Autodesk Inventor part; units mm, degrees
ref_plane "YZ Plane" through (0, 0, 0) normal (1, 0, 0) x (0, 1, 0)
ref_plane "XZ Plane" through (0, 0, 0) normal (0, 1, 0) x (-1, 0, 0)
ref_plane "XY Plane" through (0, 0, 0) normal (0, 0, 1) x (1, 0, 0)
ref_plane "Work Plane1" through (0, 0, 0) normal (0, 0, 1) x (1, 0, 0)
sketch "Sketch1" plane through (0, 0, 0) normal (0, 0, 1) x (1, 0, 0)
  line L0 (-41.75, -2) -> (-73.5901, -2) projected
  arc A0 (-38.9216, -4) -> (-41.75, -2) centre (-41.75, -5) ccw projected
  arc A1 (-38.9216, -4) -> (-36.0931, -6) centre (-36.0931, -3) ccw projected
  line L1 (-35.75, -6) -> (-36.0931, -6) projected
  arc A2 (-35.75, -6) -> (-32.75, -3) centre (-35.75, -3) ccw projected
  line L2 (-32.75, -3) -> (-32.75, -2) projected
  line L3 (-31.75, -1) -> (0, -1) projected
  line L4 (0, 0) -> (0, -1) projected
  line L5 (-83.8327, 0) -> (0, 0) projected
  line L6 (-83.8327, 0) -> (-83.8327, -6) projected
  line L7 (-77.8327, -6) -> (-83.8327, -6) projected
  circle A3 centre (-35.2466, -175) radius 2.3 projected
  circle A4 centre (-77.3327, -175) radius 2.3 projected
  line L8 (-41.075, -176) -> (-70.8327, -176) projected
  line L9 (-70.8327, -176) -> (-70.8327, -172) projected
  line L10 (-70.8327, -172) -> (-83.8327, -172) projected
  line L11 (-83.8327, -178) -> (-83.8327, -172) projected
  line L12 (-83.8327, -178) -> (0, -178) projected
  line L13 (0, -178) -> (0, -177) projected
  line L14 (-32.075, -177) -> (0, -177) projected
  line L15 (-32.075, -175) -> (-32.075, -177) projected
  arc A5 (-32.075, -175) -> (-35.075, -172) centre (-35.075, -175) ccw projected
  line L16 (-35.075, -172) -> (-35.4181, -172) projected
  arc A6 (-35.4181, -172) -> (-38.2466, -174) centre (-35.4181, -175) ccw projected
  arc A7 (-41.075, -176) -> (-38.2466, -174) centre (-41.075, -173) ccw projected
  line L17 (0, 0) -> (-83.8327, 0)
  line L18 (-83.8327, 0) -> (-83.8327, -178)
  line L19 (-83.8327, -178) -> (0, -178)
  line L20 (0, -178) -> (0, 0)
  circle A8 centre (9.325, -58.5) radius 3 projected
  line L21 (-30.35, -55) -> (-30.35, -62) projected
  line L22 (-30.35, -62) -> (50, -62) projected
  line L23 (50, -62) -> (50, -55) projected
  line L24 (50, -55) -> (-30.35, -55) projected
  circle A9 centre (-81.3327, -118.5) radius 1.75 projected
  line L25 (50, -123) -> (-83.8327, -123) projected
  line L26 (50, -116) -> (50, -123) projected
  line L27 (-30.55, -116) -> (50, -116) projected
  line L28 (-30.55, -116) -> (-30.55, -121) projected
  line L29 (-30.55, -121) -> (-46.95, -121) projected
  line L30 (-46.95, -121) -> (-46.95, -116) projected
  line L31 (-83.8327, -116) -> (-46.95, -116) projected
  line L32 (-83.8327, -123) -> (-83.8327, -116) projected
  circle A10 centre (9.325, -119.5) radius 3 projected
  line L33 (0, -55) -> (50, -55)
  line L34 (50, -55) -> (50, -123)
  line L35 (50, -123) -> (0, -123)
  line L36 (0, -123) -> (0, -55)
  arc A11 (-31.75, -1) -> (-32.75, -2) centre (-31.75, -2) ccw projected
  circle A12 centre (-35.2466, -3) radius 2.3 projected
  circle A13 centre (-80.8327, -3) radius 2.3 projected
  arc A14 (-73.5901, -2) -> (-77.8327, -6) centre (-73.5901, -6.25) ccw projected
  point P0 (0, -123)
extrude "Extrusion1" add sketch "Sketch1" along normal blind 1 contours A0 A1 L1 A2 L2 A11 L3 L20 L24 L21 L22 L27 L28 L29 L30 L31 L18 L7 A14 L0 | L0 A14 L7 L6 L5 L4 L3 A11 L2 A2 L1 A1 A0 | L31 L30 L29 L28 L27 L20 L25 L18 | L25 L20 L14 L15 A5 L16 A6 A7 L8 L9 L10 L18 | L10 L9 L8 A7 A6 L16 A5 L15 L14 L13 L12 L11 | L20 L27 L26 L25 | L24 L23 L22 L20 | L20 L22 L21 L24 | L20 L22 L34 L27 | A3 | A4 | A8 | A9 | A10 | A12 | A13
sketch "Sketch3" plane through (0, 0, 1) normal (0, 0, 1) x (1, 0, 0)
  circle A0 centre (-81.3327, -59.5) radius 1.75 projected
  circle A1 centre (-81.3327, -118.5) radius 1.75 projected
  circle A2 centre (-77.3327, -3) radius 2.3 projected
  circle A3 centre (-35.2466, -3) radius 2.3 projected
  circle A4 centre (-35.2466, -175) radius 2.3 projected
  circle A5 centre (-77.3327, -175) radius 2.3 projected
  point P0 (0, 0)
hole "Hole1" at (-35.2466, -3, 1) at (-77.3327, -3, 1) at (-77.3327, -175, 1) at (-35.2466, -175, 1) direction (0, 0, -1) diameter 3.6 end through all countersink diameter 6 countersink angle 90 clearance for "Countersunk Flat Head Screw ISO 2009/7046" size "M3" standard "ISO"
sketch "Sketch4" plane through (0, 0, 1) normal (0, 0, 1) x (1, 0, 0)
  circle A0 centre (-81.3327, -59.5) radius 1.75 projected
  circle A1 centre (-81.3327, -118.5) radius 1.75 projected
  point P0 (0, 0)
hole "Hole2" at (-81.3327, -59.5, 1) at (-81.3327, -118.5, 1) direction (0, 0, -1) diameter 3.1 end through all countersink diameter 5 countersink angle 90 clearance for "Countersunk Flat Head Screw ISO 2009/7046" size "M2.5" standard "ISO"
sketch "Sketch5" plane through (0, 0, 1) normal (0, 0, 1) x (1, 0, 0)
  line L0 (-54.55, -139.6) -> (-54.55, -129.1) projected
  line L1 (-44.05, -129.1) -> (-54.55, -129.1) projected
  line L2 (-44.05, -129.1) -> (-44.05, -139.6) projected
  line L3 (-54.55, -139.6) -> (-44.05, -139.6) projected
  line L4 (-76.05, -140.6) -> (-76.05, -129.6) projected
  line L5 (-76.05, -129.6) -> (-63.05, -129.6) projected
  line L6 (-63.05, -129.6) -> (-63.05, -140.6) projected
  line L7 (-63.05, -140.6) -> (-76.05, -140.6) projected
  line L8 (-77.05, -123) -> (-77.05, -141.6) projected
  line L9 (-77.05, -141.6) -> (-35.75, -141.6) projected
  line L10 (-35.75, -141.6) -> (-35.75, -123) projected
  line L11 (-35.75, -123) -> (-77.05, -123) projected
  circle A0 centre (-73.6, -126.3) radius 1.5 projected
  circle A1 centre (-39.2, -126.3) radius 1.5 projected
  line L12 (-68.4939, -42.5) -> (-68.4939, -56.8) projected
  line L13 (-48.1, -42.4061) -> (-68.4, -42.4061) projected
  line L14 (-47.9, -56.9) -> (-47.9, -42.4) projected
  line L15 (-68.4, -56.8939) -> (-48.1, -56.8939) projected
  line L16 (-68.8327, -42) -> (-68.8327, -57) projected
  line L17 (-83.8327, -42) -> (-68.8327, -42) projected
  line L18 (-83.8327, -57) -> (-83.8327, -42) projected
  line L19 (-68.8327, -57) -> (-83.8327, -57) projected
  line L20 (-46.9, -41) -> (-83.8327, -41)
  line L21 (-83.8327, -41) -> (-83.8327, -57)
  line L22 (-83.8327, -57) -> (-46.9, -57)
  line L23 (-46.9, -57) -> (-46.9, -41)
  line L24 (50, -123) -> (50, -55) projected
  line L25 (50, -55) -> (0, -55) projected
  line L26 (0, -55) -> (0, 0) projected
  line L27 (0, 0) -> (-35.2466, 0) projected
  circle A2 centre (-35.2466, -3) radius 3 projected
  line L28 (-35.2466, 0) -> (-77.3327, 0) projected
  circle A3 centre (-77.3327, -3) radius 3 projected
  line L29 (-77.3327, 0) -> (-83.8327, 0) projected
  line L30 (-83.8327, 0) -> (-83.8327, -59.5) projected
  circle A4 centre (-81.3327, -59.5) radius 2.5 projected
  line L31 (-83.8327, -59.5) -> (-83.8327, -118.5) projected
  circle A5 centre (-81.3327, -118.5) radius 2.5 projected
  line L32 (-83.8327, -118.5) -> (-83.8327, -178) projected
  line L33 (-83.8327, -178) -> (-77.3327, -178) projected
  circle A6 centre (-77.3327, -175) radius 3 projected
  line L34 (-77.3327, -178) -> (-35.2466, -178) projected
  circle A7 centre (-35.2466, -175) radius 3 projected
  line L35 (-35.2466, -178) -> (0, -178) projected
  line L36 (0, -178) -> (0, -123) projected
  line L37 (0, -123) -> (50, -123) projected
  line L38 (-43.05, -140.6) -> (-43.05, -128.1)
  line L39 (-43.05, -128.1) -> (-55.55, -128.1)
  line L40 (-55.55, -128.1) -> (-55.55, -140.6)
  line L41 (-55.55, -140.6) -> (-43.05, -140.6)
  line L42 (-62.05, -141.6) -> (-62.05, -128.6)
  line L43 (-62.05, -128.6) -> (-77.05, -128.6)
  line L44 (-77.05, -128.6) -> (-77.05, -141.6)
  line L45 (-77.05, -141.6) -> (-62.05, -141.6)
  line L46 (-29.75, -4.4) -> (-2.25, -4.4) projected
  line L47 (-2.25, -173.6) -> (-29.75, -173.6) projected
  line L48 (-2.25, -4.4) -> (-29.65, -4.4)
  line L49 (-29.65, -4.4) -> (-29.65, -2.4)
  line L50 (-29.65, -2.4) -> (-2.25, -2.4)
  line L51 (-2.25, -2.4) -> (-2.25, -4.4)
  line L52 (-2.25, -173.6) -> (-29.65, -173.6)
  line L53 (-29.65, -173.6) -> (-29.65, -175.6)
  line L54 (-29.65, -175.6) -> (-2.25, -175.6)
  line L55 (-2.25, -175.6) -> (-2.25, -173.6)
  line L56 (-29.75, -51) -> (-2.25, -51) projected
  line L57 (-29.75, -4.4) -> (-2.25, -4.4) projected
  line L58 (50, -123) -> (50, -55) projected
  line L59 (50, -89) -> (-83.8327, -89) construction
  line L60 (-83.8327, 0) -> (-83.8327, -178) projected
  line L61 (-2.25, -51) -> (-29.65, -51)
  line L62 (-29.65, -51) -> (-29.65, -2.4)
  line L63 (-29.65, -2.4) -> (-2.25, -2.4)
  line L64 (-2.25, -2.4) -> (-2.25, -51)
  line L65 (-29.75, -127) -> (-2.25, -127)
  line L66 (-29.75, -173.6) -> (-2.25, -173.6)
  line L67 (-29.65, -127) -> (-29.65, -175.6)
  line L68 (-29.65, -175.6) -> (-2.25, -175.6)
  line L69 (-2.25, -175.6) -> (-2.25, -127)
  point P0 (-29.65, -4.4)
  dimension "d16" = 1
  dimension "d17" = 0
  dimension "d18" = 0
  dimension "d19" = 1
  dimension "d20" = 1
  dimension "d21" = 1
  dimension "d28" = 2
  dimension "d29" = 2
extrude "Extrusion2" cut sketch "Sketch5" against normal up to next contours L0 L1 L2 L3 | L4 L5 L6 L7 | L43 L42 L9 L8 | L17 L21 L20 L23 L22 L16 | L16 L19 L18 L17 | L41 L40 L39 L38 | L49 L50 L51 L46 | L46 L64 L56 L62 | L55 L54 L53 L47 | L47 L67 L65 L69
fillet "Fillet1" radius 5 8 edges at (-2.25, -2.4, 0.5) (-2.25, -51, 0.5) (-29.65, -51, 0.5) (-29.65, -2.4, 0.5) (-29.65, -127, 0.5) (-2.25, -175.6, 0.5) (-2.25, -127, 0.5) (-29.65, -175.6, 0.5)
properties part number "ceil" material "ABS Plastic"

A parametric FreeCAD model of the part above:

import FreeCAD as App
import Part
import Sketcher


def edges_at(feature, points):
    """Names of the edges that pass closest to the given points."""
    edges = feature.Shape.Edges
    near = lambda p: min(range(len(edges)), key=lambda i: edges[i].distToShape(Part.Vertex(*p))[0])
    return sorted({f"Edge{near(p) + 1}" for p in points})

doc = App.newDocument("Part")
body = doc.addObject("PartDesign::Body", "Body")

# Sketch on XY plane
sketch1 = doc.addObject("Sketcher::SketchObject", "Sketch")
body.addObject(sketch1)
sketch1.AttachmentSupport = (doc.XY_Plane, [""])
sketch1.MapMode = "FlatFace"
sketch1.addGeometry(Part.LineSegment(App.Vector(0, -55, 0), App.Vector(0, 0, 0)), False)
sketch1.addGeometry(Part.LineSegment(App.Vector(0, 0, 0), App.Vector(-84, 0, 0)), False)
sketch1.addGeometry(Part.LineSegment(App.Vector(-84, 0, 0), App.Vector(-84, -178, 0)), False)
sketch1.addGeometry(Part.LineSegment(App.Vector(-84, -178, 0), App.Vector(0, -178, 0)), False)
sketch1.addGeometry(Part.LineSegment(App.Vector(0, -178, 0), App.Vector(0, -123, 0)), False)
sketch1.addGeometry(Part.LineSegment(App.Vector(0, -123, 0), App.Vector(50, -123, 0)), False)
sketch1.addGeometry(Part.LineSegment(App.Vector(50, -123, 0), App.Vector(50, -55, 0)), False)
sketch1.addGeometry(Part.LineSegment(App.Vector(50, -55, 0), App.Vector(0, -55, 0)), False)
sketch1.addConstraint(Sketcher.Constraint("Coincident", 0, 2, 1, 1))
sketch1.addConstraint(Sketcher.Constraint("Coincident", 1, 2, 2, 1))
sketch1.addConstraint(Sketcher.Constraint("Coincident", 2, 2, 3, 1))
sketch1.addConstraint(Sketcher.Constraint("Coincident", 3, 2, 4, 1))
sketch1.addConstraint(Sketcher.Constraint("Coincident", 4, 2, 5, 1))
sketch1.addConstraint(Sketcher.Constraint("Coincident", 5, 2, 6, 1))
sketch1.addConstraint(Sketcher.Constraint("Coincident", 6, 2, 7, 1))
sketch1.addConstraint(Sketcher.Constraint("Coincident", 7, 2, 0, 1))
sketch1.addConstraint(Sketcher.Constraint("Vertical", 0))
sketch1.addConstraint(Sketcher.Constraint("Horizontal", 1))
sketch1.addConstraint(Sketcher.Constraint("Vertical", 2))
sketch1.addConstraint(Sketcher.Constraint("Horizontal", 3))
sketch1.addConstraint(Sketcher.Constraint("Vertical", 4))
sketch1.addConstraint(Sketcher.Constraint("Horizontal", 5))
sketch1.addConstraint(Sketcher.Constraint("Vertical", 6))
sketch1.addConstraint(Sketcher.Constraint("Horizontal", 7))
sketch1.addConstraint(Sketcher.Constraint("Coincident", 0, 2, -1, 1))
sketch1.addConstraint(Sketcher.Constraint("PointOnObject", 3, 2, -2))
sketch1.addConstraint(Sketcher.Constraint("Equal", 0, 4))
sketch1.addConstraint(Sketcher.Constraint("DistanceX", 5, 1, 5, 2, 50.0))
sketch1.addConstraint(Sketcher.Constraint("DistanceY", 0, 1, 0, 2, 55.0))
sketch1.addConstraint(Sketcher.Constraint("DistanceY", 2, 2, 2, 1, 178.0))
sketch1.addConstraint(Sketcher.Constraint("DistanceX", 1, 2, 1, 1, 83.8327))
pad1 = doc.addObject("PartDesign::Pad", "Pad")
body.addObject(pad1)
pad1.Profile = sketch1
pad1.Length = 1

# Sketch on XY plane
sketch2 = doc.addObject("Sketcher::SketchObject", "Sketch001")
body.addObject(sketch2)
sketch2.AttachmentSupport = (doc.XY_Plane, [""])
sketch2.MapMode = "FlatFace"
sketch2.AttachmentOffset = App.Placement(App.Vector(0, 0, 1), App.Rotation())
sketch2.addGeometry(Part.Circle(App.Vector(-35.2, -3, 0), App.Vector(0, 0, 1), 1.8), False)
sketch2.addGeometry(Part.Circle(App.Vector(-77.3, -3, 0), App.Vector(0, 0, 1), 1.8), False)
sketch2.addGeometry(Part.Circle(App.Vector(-77.3, -175, 0), App.Vector(0, 0, 1), 1.8), False)
sketch2.addGeometry(Part.Circle(App.Vector(-35.2, -175, 0), App.Vector(0, 0, 1), 1.8), False)
sketch2.addConstraint(Sketcher.Constraint("Equal", 0, 1))
sketch2.addConstraint(Sketcher.Constraint("Equal", 1, 2))
sketch2.addConstraint(Sketcher.Constraint("Equal", 2, 3))
sketch2.addConstraint(Sketcher.Constraint("Horizontal", 0, 3, 1, 3))
sketch2.addConstraint(Sketcher.Constraint("Horizontal", 2, 3, 3, 3))
sketch2.addConstraint(Sketcher.Constraint("Vertical", 1, 3, 2, 3))
sketch2.addConstraint(Sketcher.Constraint("Vertical", 0, 3, 3, 3))
sketch2.addConstraint(Sketcher.Constraint("Diameter", 0, 3.6))
sketch2.addConstraint(Sketcher.Constraint("DistanceY", 0, 3, -1, 1, 3.0))
sketch2.addConstraint(Sketcher.Constraint("DistanceY", 2, 3, -1, 1, 175.0))
sketch2.addConstraint(Sketcher.Constraint("DistanceX", 1, 3, 0, 3, 42.086))
sketch2.addConstraint(Sketcher.Constraint("DistanceX", 0, 3, -1, 1, 35.2466))
doc.recompute()
hole = doc.addObject("PartDesign::Hole", "Hole")
body.addObject(hole)
hole.Profile = sketch2
hole.ThreadType = "None"
hole.Diameter = 3.6
hole.DepthType = "ThroughAll"
hole.HoleCutType = "Countersink"
hole.HoleCutDiameter = 6
hole.HoleCutCountersinkAngle = 90

# Sketch on XY plane
sketch3 = doc.addObject("Sketcher::SketchObject", "Sketch002")
body.addObject(sketch3)
sketch3.AttachmentSupport = (doc.XY_Plane, [""])
sketch3.MapMode = "FlatFace"
sketch3.AttachmentOffset = App.Placement(App.Vector(0, 0, 1), App.Rotation())
sketch3.addGeometry(Part.Circle(App.Vector(-81.3, -59.5, 0), App.Vector(0, 0, 1), 1.6), False)
sketch3.addGeometry(Part.Circle(App.Vector(-81.3, -118.5, 0), App.Vector(0, 0, 1), 1.6), False)
sketch3.addConstraint(Sketcher.Constraint("Equal", 0, 1))
sketch3.addConstraint(Sketcher.Constraint("Vertical", 0, 3, 1, 3))
sketch3.addConstraint(Sketcher.Constraint("Diameter", 0, 3.1))
sketch3.addConstraint(Sketcher.Constraint("DistanceY", 1, 3, 0, 3, 59.0))
sketch3.addConstraint(Sketcher.Constraint("DistanceY", 0, 3, -1, 1, 59.5))
sketch3.addConstraint(Sketcher.Constraint("DistanceX", 0, 3, -1, 1, 81.3327))
doc.recompute()
hole2 = doc.addObject("PartDesign::Hole", "Hole001")
body.addObject(hole2)
hole2.Profile = sketch3
hole2.ThreadType = "None"
hole2.Diameter = 3.1
hole2.DepthType = "ThroughAll"
hole2.HoleCutType = "Countersink"
hole2.HoleCutDiameter = 5
hole2.HoleCutCountersinkAngle = 90

# Sketch on XY plane
sketch4 = doc.addObject("Sketcher::SketchObject", "Sketch003")
body.addObject(sketch4)
sketch4.AttachmentSupport = (doc.XY_Plane, [""])
sketch4.MapMode = "FlatFace"
sketch4.AttachmentOffset = App.Placement(App.Vector(0, 0, 1), App.Rotation())
sketch4.addGeometry(Part.LineSegment(App.Vector(-56, -141, 0), App.Vector(-43, -141, 0)), False)
sketch4.addGeometry(Part.LineSegment(App.Vector(-43, -141, 0), App.Vector(-43, -128, 0)), False)
sketch4.addGeometry(Part.LineSegment(App.Vector(-43, -128, 0), App.Vector(-56, -128, 0)), False)
sketch4.addGeometry(Part.LineSegment(App.Vector(-56, -128, 0), App.Vector(-56, -141, 0)), False)
sketch4.addGeometry(Part.LineSegment(App.Vector(-62, -129, 0), App.Vector(-77, -129, 0)), False)
sketch4.addGeometry(Part.LineSegment(App.Vector(-77, -129, 0), App.Vector(-77, -142, 0)), False)
sketch4.addGeometry(Part.LineSegment(App.Vector(-77, -142, 0), App.Vector(-62, -142, 0)), False)
sketch4.addGeometry(Part.LineSegment(App.Vector(-62, -142, 0), App.Vector(-62, -129, 0)), False)
sketch4.addGeometry(Part.LineSegment(App.Vector(-84, -41, 0), App.Vector(-84, -57, 0)), False)
sketch4.addGeometry(Part.LineSegment(App.Vector(-84, -57, 0), App.Vector(-47, -57, 0)), False)
sketch4.addGeometry(Part.LineSegment(App.Vector(-47, -57, 0), App.Vector(-47, -41, 0)), False)
sketch4.addGeometry(Part.LineSegment(App.Vector(-47, -41, 0), App.Vector(-84, -41, 0)), False)
sketch4.addGeometry(Part.LineSegment(App.Vector(-30, -2, 0), App.Vector(-30, -51, 0)), False)
sketch4.addGeometry(Part.LineSegment(App.Vector(-30, -51, 0), App.Vector(-2, -51, 0)), False)
sketch4.addGeometry(Part.LineSegment(App.Vector(-2, -51, 0), App.Vector(-2, -2, 0)), False)
sketch4.addGeometry(Part.LineSegment(App.Vector(-2, -2, 0), App.Vector(-30, -2, 0)), False)
sketch4.addGeometry(Part.LineSegment(App.Vector(-2, -176, 0), App.Vector(-2, -127, 0)), False)
sketch4.addGeometry(Part.LineSegment(App.Vector(-2, -127, 0), App.Vector(-30, -127, 0)), False)
sketch4.addGeometry(Part.LineSegment(App.Vector(-30, -127, 0), App.Vector(-30, -176, 0)), False)
sketch4.addGeometry(Part.LineSegment(App.Vector(-30, -176, 0), App.Vector(-2, -176, 0)), False)
sketch4.addConstraint(Sketcher.Constraint("Coincident", 0, 2, 1, 1))
sketch4.addConstraint(Sketcher.Constraint("Coincident", 1, 2, 2, 1))
sketch4.addConstraint(Sketcher.Constraint("Coincident", 2, 2, 3, 1))
sketch4.addConstraint(Sketcher.Constraint("Coincident", 3, 2, 0, 1))
sketch4.addConstraint(Sketcher.Constraint("Coincident", 4, 2, 5, 1))
sketch4.addConstraint(Sketcher.Constraint("Coincident", 5, 2, 6, 1))
sketch4.addConstraint(Sketcher.Constraint("Coincident", 6, 2, 7, 1))
sketch4.addConstraint(Sketcher.Constraint("Coincident", 7, 2, 4, 1))
sketch4.addConstraint(Sketcher.Constraint("Coincident", 8, 2, 9, 1))
sketch4.addConstraint(Sketcher.Constraint("Coincident", 9, 2, 10, 1))
sketch4.addConstraint(Sketcher.Constraint("Coincident", 10, 2, 11, 1))
sketch4.addConstraint(Sketcher.Constraint("Coincident", 11, 2, 8, 1))
sketch4.addConstraint(Sketcher.Constraint("Coincident", 12, 2, 13, 1))
sketch4.addConstraint(Sketcher.Constraint("Coincident", 13, 2, 14, 1))
sketch4.addConstraint(Sketcher.Constraint("Coincident", 14, 2, 15, 1))
sketch4.addConstraint(Sketcher.Constraint("Coincident", 15, 2, 12, 1))
sketch4.addConstraint(Sketcher.Constraint("Coincident", 16, 2, 17, 1))
sketch4.addConstraint(Sketcher.Constraint("Coincident", 17, 2, 18, 1))
sketch4.addConstraint(Sketcher.Constraint("Coincident", 18, 2, 19, 1))
sketch4.addConstraint(Sketcher.Constraint("Coincident", 19, 2, 16, 1))
sketch4.addConstraint(Sketcher.Constraint("Horizontal", 0))
sketch4.addConstraint(Sketcher.Constraint("Vertical", 1))
sketch4.addConstraint(Sketcher.Constraint("Horizontal", 2))
sketch4.addConstraint(Sketcher.Constraint("Vertical", 3))
sketch4.addConstraint(Sketcher.Constraint("Horizontal", 4))
sketch4.addConstraint(Sketcher.Constraint("Vertical", 5))
sketch4.addConstraint(Sketcher.Constraint("Horizontal", 6))
sketch4.addConstraint(Sketcher.Constraint("Vertical", 7))
sketch4.addConstraint(Sketcher.Constraint("Vertical", 8))
sketch4.addConstraint(Sketcher.Constraint("Horizontal", 9))
sketch4.addConstraint(Sketcher.Constraint("Vertical", 10))
sketch4.addConstraint(Sketcher.Constraint("Horizontal", 11))
sketch4.addConstraint(Sketcher.Constraint("Vertical", 12))
sketch4.addConstraint(Sketcher.Constraint("Horizontal", 13))
sketch4.addConstraint(Sketcher.Constraint("Vertical", 14))
sketch4.addConstraint(Sketcher.Constraint("Horizontal", 15))
sketch4.addConstraint(Sketcher.Constraint("Vertical", 16))
sketch4.addConstraint(Sketcher.Constraint("Horizontal", 17))
sketch4.addConstraint(Sketcher.Constraint("Vertical", 18))
sketch4.addConstraint(Sketcher.Constraint("Horizontal", 19))
sketch4.addConstraint(Sketcher.Constraint("Vertical", 14, 2, 16, 2))
sketch4.addConstraint(Sketcher.Constraint("Vertical", 15, 2, 17, 2))
sketch4.addConstraint(Sketcher.Constraint("Equal", 2, 1))
sketch4.addConstraint(Sketcher.Constraint("Equal", 14, 16))
sketch4.addConstraint(Sketcher.Constraint("DistanceY", 5, 2, 3, 2, 1.0))
sketch4.addConstraint(Sketcher.Constraint("DistanceX", 4, 2, 4, 1, 15.0))
sketch4.addConstraint(Sketcher.Constraint("DistanceY", 5, 2, 5, 1, 13.0))
sketch4.addConstraint(Sketcher.Constraint("DistanceY", 8, 2, 8, 1, 16.0))
sketch4.addConstraint(Sketcher.Constraint("DistanceX", 0, 1, 0, 2, 12.5))
sketch4.addConstraint(Sketcher.Constraint("DistanceX", 13, 1, 13, 2, 27.4))
sketch4.addConstraint(Sketcher.Constraint("DistanceY", 12, 2, 12, 1, 48.6))
sketch4.addConstraint(Sketcher.Constraint("DistanceY", 8, 2, -1, 1, 57.0))
sketch4.addConstraint(Sketcher.Constraint("DistanceY", 12, 2, -1, 1, 51.0))
sketch4.addConstraint(Sketcher.Constraint("DistanceY", 16, 2, -1, 1, 127.0))
sketch4.addConstraint(Sketcher.Constraint("DistanceX", 4, 2, 1, 2, 34.0))
sketch4.addConstraint(Sketcher.Constraint("DistanceY", 18, 2, 0, 2, 35.0))
sketch4.addConstraint(Sketcher.Constraint("DistanceX", 9, 2, -1, 1, 46.9))
sketch4.addConstraint(Sketcher.Constraint("DistanceX", 1, 2, 12, 2, 13.4))
sketch4.addConstraint(Sketcher.Constraint("DistanceX", 0, 2, -1, 1, 43.05))
sketch4.addConstraint(Sketcher.Constraint("DistanceX", 9, 1, 9, 2, 36.9327))
pocket1 = doc.addObject("PartDesign::Pocket", "Pocket")
body.addObject(pocket1)
pocket1.Profile = sketch4
pocket1.Type = "UpToFirst"
doc.recompute()

fillet = doc.addObject("PartDesign::Fillet", "Fillet")
body.addObject(fillet)
fillet.Base = (pocket1, edges_at(pocket1, [
    (-2.25, -2.4, 0.5),
    (-2.25, -51, 0.5),
    (-29.65, -51, 0.5),
    (-29.65, -2.4, 0.5),
    (-29.65, -127, 0.5),
    (-2.25, -175.6, 0.5),
    (-2.25, -127, 0.5),
    (-29.65, -175.6, 0.5),
]))
fillet.Radius = 5

doc.recompute()
